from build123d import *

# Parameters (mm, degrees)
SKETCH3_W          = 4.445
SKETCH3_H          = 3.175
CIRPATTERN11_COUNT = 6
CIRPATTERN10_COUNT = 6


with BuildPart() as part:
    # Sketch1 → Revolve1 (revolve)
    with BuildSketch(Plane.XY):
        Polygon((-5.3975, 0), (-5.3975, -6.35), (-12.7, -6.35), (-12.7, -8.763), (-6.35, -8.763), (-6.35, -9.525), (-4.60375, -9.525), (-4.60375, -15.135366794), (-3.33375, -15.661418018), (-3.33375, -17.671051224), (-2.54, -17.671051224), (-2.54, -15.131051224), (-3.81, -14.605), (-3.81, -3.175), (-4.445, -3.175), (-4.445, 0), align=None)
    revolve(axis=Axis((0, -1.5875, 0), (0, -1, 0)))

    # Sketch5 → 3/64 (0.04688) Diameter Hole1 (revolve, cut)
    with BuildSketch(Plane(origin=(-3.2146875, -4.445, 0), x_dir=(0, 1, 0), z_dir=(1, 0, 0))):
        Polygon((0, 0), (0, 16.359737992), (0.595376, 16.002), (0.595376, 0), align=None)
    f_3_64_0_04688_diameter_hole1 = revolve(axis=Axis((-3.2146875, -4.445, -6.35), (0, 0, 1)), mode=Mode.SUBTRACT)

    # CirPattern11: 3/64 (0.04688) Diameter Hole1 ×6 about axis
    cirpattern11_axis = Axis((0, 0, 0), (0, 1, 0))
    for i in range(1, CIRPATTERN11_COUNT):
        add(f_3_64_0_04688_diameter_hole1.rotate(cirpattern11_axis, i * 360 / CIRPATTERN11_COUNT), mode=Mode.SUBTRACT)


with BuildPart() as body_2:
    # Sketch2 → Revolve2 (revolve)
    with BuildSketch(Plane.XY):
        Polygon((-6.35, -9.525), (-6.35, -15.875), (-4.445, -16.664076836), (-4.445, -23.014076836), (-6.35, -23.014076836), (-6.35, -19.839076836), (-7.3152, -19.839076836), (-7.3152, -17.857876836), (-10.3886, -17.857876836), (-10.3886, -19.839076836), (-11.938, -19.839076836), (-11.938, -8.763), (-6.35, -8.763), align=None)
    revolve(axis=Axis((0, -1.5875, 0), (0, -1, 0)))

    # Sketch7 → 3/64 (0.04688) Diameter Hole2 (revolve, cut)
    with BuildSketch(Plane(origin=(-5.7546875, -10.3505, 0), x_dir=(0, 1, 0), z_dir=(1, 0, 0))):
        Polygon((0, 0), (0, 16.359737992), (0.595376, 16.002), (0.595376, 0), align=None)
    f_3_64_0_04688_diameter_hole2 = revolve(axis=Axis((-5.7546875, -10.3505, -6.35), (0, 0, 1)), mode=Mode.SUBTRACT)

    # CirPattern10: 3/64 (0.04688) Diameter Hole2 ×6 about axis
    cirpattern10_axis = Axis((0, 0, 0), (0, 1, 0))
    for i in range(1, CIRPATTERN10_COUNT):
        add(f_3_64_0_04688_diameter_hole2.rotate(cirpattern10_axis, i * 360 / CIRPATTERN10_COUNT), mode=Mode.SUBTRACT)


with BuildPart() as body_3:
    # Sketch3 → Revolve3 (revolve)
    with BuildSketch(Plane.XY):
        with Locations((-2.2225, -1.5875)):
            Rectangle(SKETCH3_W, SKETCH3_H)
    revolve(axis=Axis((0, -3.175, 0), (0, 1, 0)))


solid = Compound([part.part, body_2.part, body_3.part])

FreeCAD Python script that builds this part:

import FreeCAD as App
import Part
import Sketcher

V = App.Vector
Q = App.Units.Quantity


def add_polygon(sketch, points):
    """Adds a closed chain of lines whose ends are joined by coincident constraints."""
    first, n = sketch.GeometryCount, len(points)
    for a, b in zip(points, points[1:] + points[:1]):
        sketch.addGeometry(Part.LineSegment(App.Vector(*a, 0), App.Vector(*b, 0)), False)
    for i in range(n):
        sketch.addConstraint(Sketcher.Constraint("Coincident", first + i, 2, first + (i + 1) % n, 1))

doc = App.newDocument("Part")
body = doc.addObject("PartDesign::Body", "Body")

sketch1 = body.newObject("Sketcher::SketchObject", "Sketch")
sketch1.AttachmentSupport = (doc.getObject("XY_Plane"), [""])
sketch1.MapMode = "FlatFace"
add_polygon(sketch1, [(-5.4, 0), (-5.4, -6.3), (-12.7, -6.3), (-12.7, -8.8), (-6.3, -8.8), (-6.3, -9.5), (-4.6, -9.5), (-4.6, -15.1), (-3.3, -15.7), (-3.3, -17.7), (-2.5, -17.7), (-2.5, -15.1), (-3.8, -14.6), (-3.8, -3.2), (-4.4, -3.2), (-4.4, 0)])
sketch1.addConstraint([
    Sketcher.Constraint("Vertical", 0),
    Sketcher.Constraint("Horizontal", 1),
    Sketcher.Constraint("Vertical", 2),
    Sketcher.Constraint("Horizontal", 3),
    Sketcher.Constraint("Vertical", 4),
    Sketcher.Constraint("Horizontal", 5),
    Sketcher.Constraint("Vertical", 6),
    Sketcher.Constraint("Vertical", 8),
    Sketcher.Constraint("Horizontal", 9),
    Sketcher.Constraint("Vertical", 10),
    Sketcher.Constraint("Vertical", 12),
    Sketcher.Constraint("Horizontal", 13),
    Sketcher.Constraint("Vertical", 14),
    Sketcher.Constraint("Horizontal", 15),
    Sketcher.Constraint("PointOnObject", 14, 2, -1),
    Sketcher.Constraint("Parallel", 7, 11),
    Sketcher.Constraint("Equal", 3, 0),
    Sketcher.Constraint("Equal", 7, 11),
    Sketcher.Constraint("DistanceY", 10, 1, 10, 2, Q("0.1 in")),
    Sketcher.Constraint("DistanceX", 3, 1, 3, 2, Q("0.25 in")),
    Sketcher.Constraint("DistanceY", 4, 2, 4, 1, Q("0.03 in")),
    Sketcher.Constraint("DistanceY", 12, 1, 12, 2, Q("0.45 in")),
    Sketcher.Constraint("DistanceX", 1, 2, -1, 1, Q("0.5 in")),
    Sketcher.Constraint("DistanceX", 9, 2, -1, 1, Q("0.1 in")),
    Sketcher.Constraint("Angle", 7, Q("-22.5 deg")),
    Sketcher.Constraint("DistanceX", 3, 2, 12, 2, Q("0.1 in")),
    Sketcher.Constraint("DistanceX", 9, 1, 9, 2, Q("0.03125 in")),
    Sketcher.Constraint("DistanceX", 13, 2, 13, 1, Q("0.025 in")),
    Sketcher.Constraint("DistanceY", 2, 2, 2, 1, Q("0.095 in")),
    Sketcher.Constraint("DistanceY", 14, 1, 14, 2, Q("0.125 in")),
    Sketcher.Constraint("DistanceX", 1, 2, 1, 1, Q("0.2875 in")),
    Sketcher.Constraint("DistanceY", 6, 2, 6, 1, Q("5.610367 mm")),
])
revolution = body.newObject("PartDesign::Revolution", "Revolution")
revolution.Profile = sketch1
revolution.ReferenceAxis = (sketch1, ["V_Axis"])
revolution.Angle = 360

sketch2 = body.newObject("Sketcher::SketchObject", "Sketch001")
sketch2.AttachmentSupport = (doc.getObject("YZ_Plane"), [""])
sketch2.MapMode = "FlatFace"
sketch2.AttachmentOffset = App.Placement(V(0, 0, -3.214688), App.Rotation())
add_polygon(sketch2, [(-4.4, 16.4), (-4.4, 0), (-3.8, 0), (-3.8, 16)])
sketch2.addGeometry(Part.LineSegment(V(-4.4, 0, 0), V(-4.4, 16.4, 0)), True)
sketch2.addConstraint([
    Sketcher.Constraint("Vertical", 0),
    Sketcher.Constraint("Horizontal", 1),
    Sketcher.Constraint("Vertical", 2),
    Sketcher.Constraint("Vertical", 4),
    Sketcher.Constraint("Coincident", 4, 1, 0, 2),
    Sketcher.Constraint("PointOnObject", 0, 2, -1),
    Sketcher.Constraint("Equal", 0, 4),
    Sketcher.Constraint("Angle", 3, Q("149 deg")),
    Sketcher.Constraint("DistanceY", 2, 1, 2, 2, Q("0.63 in")),
    Sketcher.Constraint("DistanceX", 0, 2, -1, 1, Q("0.175 in")),
    Sketcher.Constraint("DistanceX", 1, 1, 1, 2, Q("0.595376 mm")),
])
groove = body.newObject("PartDesign::Groove", "Groove")
groove.Profile = sketch2
groove.ReferenceAxis = (sketch2, ["Axis0"])
groove.Angle = 360
doc.recompute()

polarpattern = body.newObject("PartDesign::PolarPattern", "PolarPattern")
polarpattern.Originals = [groove]
polarpattern.Axis = (doc.getObject("Y_Axis"), [""])
polarpattern.Angle = 360
polarpattern.Occurrences = 6
body.Tip = polarpattern
body2 = doc.addObject("PartDesign::Body", "Body001")

sketch3 = body2.newObject("Sketcher::SketchObject", "Sketch002")
sketch3.AttachmentSupport = (doc.getObject("XY_Plane001"), [""])
sketch3.MapMode = "FlatFace"
add_polygon(sketch3, [(-6.3, -15.9), (-6.3, -8.8), (-11.9, -8.8), (-11.9, -19.8), (-10.4, -19.8), (-10.4, -17.9), (-7.3, -17.9), (-7.3, -19.8), (-6.3, -19.8), (-6.3, -23), (-4.4, -23), (-4.4, -16.7)])
sketch3.addConstraint([
    Sketcher.Constraint("Vertical", 0),
    Sketcher.Constraint("Horizontal", 1),
    Sketcher.Constraint("Vertical", 2),
    Sketcher.Constraint("Horizontal", 3),
    Sketcher.Constraint("Vertical", 4),
    Sketcher.Constraint("Horizontal", 5),
    Sketcher.Constraint("Vertical", 6),
    Sketcher.Constraint("Horizontal", 7),
    Sketcher.Constraint("Vertical", 8),
    Sketcher.Constraint("Horizontal", 9),
    Sketcher.Constraint("Vertical", 10),
    Sketcher.Constraint("Horizontal", 3, 2, 6, 2),
    Sketcher.Constraint("Vertical", 0, 2, 7, 2),
    Sketcher.Constraint("DistanceX", 1, 2, 1, 1, Q("0.22 in")),
    Sketcher.Constraint("DistanceY", 0, 1, 0, 2, Q("0.28 in")),
    Sketcher.Constraint("DistanceY", 10, 1, 10, 2, Q("0.25 in")),
    Sketcher.Constraint("Angle", 11, Q("157.5 deg")),
    Sketcher.Constraint("DistanceX", 3, 1, 3, 2, Q("0.061 in")),
    Sketcher.Constraint("DistanceX", 5, 1, 5, 2, Q("0.121 in")),
    Sketcher.Constraint("DistanceX", 9, 1, 9, 2, Q("0.075 in")),
    Sketcher.Constraint("DistanceY", 4, 1, 4, 2, Q("0.078 in")),
    Sketcher.Constraint("DistanceY", 8, 2, 8, 1, Q("0.125 in")),
    Sketcher.Constraint("DistanceX", 0, 2, -1, 1, Q("0.25 in")),
    Sketcher.Constraint("DistanceY", 0, 2, -1, 1, Q("0.345 in")),
])
revolution2 = body2.newObject("PartDesign::Revolution", "Revolution001")
revolution2.Profile = sketch3
revolution2.ReferenceAxis = (sketch3, ["V_Axis"])
revolution2.Angle = 360

sketch4 = body2.newObject("Sketcher::SketchObject", "Sketch003")
sketch4.AttachmentSupport = (doc.getObject("YZ_Plane001"), [""])
sketch4.MapMode = "FlatFace"
sketch4.AttachmentOffset = App.Placement(V(0, 0, -5.754688), App.Rotation())
add_polygon(sketch4, [(-10.4, 16.4), (-10.4, 0), (-9.8, 0), (-9.8, 16)])
sketch4.addGeometry(Part.LineSegment(V(-10.4, 0, 0), V(-10.4, 16.4, 0)), True)
sketch4.addConstraint([
    Sketcher.Constraint("Vertical", 0),
    Sketcher.Constraint("Horizontal", 1),
    Sketcher.Constraint("Vertical", 2),
    Sketcher.Constraint("Vertical", 4),
    Sketcher.Constraint("Coincident", 4, 1, 0, 2),
    Sketcher.Constraint("PointOnObject", 0, 2, -1),
    Sketcher.Constraint("Equal", 0, 4),
    Sketcher.Constraint("Angle", 3, Q("149 deg")),
    Sketcher.Constraint("DistanceY", 2, 1, 2, 2, Q("0.63 in")),
    Sketcher.Constraint("DistanceX", 0, 2, -1, 1, Q("0.4075 in")),
    Sketcher.Constraint("DistanceX", 1, 1, 1, 2, Q("0.595376 mm")),
])
groove2 = body2.newObject("PartDesign::Groove", "Groove001")
groove2.Profile = sketch4
groove2.ReferenceAxis = (sketch4, ["Axis0"])
groove2.Angle = 360
doc.recompute()

polarpattern2 = body2.newObject("PartDesign::PolarPattern", "PolarPattern001")
polarpattern2.Originals = [groove2]
polarpattern2.Axis = (doc.getObject("Y_Axis001"), [""])
polarpattern2.Angle = 360
polarpattern2.Occurrences = 6
body2.Tip = polarpattern2
body3 = doc.addObject("PartDesign::Body", "Body002")

sketch5 = body3.newObject("Sketcher::SketchObject", "Sketch004")
sketch5.AttachmentSupport = (doc.getObject("XY_Plane002"), [""])
sketch5.MapMode = "FlatFace"
add_polygon(sketch5, [(-4.4, 0), (-4.4, -3.2), (0, -3.2), (0, 0)])
sketch5.addConstraint([
    Sketcher.Constraint("Vertical", 0),
    Sketcher.Constraint("Horizontal", 1),
    Sketcher.Constraint("Vertical", 2),
    Sketcher.Constraint("Horizontal", 3),
    Sketcher.Constraint("Coincident", 2, 2, -1, 1),
    Sketcher.Constraint("DistanceX", 1, 1, 1, 2, Q("0.175 in")),
    Sketcher.Constraint("DistanceY", 0, 2, 0, 1, Q("0.125 in")),
])
revolution3 = body3.newObject("PartDesign::Revolution", "Revolution002")
revolution3.Profile = sketch5
revolution3.ReferenceAxis = (sketch5, ["V_Axis"])
revolution3.Angle = 360

doc.recompute()
